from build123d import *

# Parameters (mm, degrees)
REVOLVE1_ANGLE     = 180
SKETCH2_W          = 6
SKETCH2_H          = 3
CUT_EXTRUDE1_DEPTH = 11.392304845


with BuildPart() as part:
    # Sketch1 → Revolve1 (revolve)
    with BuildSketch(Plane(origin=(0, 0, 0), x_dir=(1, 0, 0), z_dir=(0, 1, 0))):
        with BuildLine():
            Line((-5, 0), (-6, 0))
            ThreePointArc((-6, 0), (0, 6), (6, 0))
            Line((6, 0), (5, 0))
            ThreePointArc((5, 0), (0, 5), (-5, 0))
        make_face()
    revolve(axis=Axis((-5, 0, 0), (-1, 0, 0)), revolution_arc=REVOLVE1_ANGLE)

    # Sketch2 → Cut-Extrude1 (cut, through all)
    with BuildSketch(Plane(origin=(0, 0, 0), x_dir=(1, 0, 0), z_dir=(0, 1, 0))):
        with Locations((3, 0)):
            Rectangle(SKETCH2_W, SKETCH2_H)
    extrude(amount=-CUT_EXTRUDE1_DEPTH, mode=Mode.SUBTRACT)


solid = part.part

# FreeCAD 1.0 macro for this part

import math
import FreeCAD as App
import Part
import Sketcher
from FreeCAD import Vector

doc = App.newDocument("Part")
body = doc.addObject("PartDesign::Body", "Body")

sketch1 = body.newObject("Sketcher::SketchObject", "Sketch")
sketch1.AttachmentSupport = (doc.getObject("XZ_Plane"), [""])
sketch1.MapMode = "FlatFace"
sketch1.addGeometry(Part.LineSegment(Vector(-6, 0, 0), Vector(-5, 0, 0)), False)
sketch1.addGeometry(Part.ArcOfCircle(Part.Circle(Vector(0, 0, 0), Vector(0, 0, 1), 5), math.radians(180), math.radians(360)), False)
sketch1.addGeometry(Part.LineSegment(Vector(5, 0, 0), Vector(6, 0, 0)), False)
sketch1.addGeometry(Part.ArcOfCircle(Part.Circle(Vector(0, 0, 0), Vector(0, 0, 1), 6), math.radians(180), math.radians(360)), False)
sketch1.addConstraint(Sketcher.Constraint("Coincident", 0, 2, 1, 1))
sketch1.addConstraint(Sketcher.Constraint("Coincident", 1, 2, 2, 1))
sketch1.addConstraint(Sketcher.Constraint("Coincident", 2, 2, 3, 2))
sketch1.addConstraint(Sketcher.Constraint("Coincident", 3, 1, 0, 1))
sketch1.addConstraint(Sketcher.Constraint("Horizontal", 0))
sketch1.addConstraint(Sketcher.Constraint("Horizontal", 2))
sketch1.addConstraint(Sketcher.Constraint("Coincident", 1, 3, -1, 1))
sketch1.addConstraint(Sketcher.Constraint("Coincident", 3, 3, -1, 1))
sketch1.addConstraint(Sketcher.Constraint("PointOnObject", 0, 2, -1))
sketch1.addConstraint(Sketcher.Constraint("PointOnObject", 1, 2, -1))
sketch1.addConstraint(Sketcher.Constraint("Radius", 1, 5.0))
sketch1.addConstraint(Sketcher.Constraint("Radius", 3, 6.0))
revolution = body.newObject("PartDesign::Revolution", "Revolution")
revolution.Profile = sketch1
revolution.ReferenceAxis = (sketch1, ["H_Axis"])
revolution.Angle = 180
revolution.Reversed = True

sketch2 = body.newObject("Sketcher::SketchObject", "Sketch001")
sketch2.AttachmentSupport = (doc.getObject("XZ_Plane"), [""])
sketch2.MapMode = "FlatFace"
sketch2.addGeometry(Part.LineSegment(Vector(0, -1.5, 0), Vector(0, 1.5, 0)), False)
sketch2.addGeometry(Part.LineSegment(Vector(0, 1.5, 0), Vector(6, 1.5, 0)), False)
sketch2.addGeometry(Part.LineSegment(Vector(6, 1.5, 0), Vector(6, -1.5, 0)), False)
sketch2.addGeometry(Part.LineSegment(Vector(6, -1.5, 0), Vector(0, -1.5, 0)), False)
sketch2.addConstraint(Sketcher.Constraint("Coincident", 0, 2, 1, 1))
sketch2.addConstraint(Sketcher.Constraint("Coincident", 1, 2, 2, 1))
sketch2.addConstraint(Sketcher.Constraint("Coincident", 2, 2, 3, 1))
sketch2.addConstraint(Sketcher.Constraint("Coincident", 3, 2, 0, 1))
sketch2.addConstraint(Sketcher.Constraint("Vertical", 0))
sketch2.addConstraint(Sketcher.Constraint("Horizontal", 1))
sketch2.addConstraint(Sketcher.Constraint("Vertical", 2))
sketch2.addConstraint(Sketcher.Constraint("Horizontal", 3))
sketch2.addConstraint(Sketcher.Constraint("Symmetric", 0, 2, 3, 2, -1, 1))
sketch2.addConstraint(Sketcher.Constraint("DistanceX", 1, 1, 1, 2, 6.0))
sketch2.addConstraint(Sketcher.Constraint("DistanceY", 0, 1, 0, 2, 3.0))
pocket1 = body.newObject("PartDesign::Pocket", "Pocket")
pocket1.Profile = sketch2
pocket1.Type = "ThroughAll"
pocket1.Reversed = True

doc.recompute()
